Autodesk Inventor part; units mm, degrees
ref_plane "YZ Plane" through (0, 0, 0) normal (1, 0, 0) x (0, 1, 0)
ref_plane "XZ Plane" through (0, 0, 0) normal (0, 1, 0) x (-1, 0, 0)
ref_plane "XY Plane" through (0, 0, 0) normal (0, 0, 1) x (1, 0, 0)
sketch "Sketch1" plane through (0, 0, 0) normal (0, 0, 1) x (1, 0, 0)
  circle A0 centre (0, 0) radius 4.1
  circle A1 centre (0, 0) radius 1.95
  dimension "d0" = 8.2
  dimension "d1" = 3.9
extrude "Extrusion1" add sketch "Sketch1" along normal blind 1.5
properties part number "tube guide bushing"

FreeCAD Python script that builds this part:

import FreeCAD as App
import Part
import Sketcher
from FreeCAD import Vector
Q = App.Units.Quantity

doc = App.newDocument("Part")
params = doc.addObject("Spreadsheet::Sheet", "Params")
for row, (alias, value) in enumerate([
    ("sketch1_diameter", "8.2 mm"),
    ("sketch1_diameter2", "3.9 mm"),
    ("pad1_length", "1.5 mm"),
], start=1):
    params.set(f"A{row}", alias)
    params.set(f"B{row}", "=" + value)
    params.setAlias(f"B{row}", alias)

body = doc.addObject("PartDesign::Body", "Body")

# Sketch on XY plane
sketch1 = body.newObject("Sketcher::SketchObject", "Sketch")
sketch1.AttachmentSupport = (doc.getObject("XY_Plane"), [""])
sketch1.MapMode = "FlatFace"
sketch1.addGeometry([
    Part.Circle(Vector(0, 0, 0), Vector(0, 0, 1), 4.1),
    Part.Circle(Vector(0, 0, 0), Vector(0, 0, 1), 1.9),
], False)
sketch1.addConstraint([
    Sketcher.Constraint("Coincident", 0, 3, -1, 1),
    Sketcher.Constraint("Coincident", 1, 3, -1, 1),
    Sketcher.Constraint("Diameter", 0, Q("8.2 mm")),
    Sketcher.Constraint("Diameter", 1, Q("3.9 mm")),
])
sketch1.setExpression("Constraints[2]", "Params.sketch1_diameter")
sketch1.setExpression("Constraints[3]", "Params.sketch1_diameter2")
pad1 = body.newObject("PartDesign::Pad", "Pad")
pad1.Profile = sketch1
pad1.setExpression("Length", "Params.pad1_length")

doc.recompute()
